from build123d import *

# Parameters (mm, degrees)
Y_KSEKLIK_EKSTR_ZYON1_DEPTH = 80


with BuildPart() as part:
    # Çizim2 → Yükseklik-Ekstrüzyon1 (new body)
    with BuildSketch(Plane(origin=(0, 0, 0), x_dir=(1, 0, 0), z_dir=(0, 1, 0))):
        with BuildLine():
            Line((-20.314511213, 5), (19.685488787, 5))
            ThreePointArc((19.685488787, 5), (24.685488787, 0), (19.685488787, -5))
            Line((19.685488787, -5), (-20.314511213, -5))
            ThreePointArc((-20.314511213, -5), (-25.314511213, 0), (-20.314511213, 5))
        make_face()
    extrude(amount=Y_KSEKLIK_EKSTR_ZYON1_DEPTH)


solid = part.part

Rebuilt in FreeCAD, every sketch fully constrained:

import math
import FreeCAD as App
import Part
import Sketcher
from FreeCAD import Vector
Q = App.Units.Quantity

doc = App.newDocument("Part")
params = doc.addObject("Spreadsheet::Sheet", "Params")
for row, (alias, value) in enumerate([
    ("sketch1_radius", "5 mm"),
    ("sketch1_width", "40 mm"),
    ("pad1_length", "80 mm"),
], start=1):
    params.set(f"A{row}", alias)
    params.set(f"B{row}", "=" + value)
    params.setAlias(f"B{row}", alias)

body = doc.addObject("PartDesign::Body", "Body")

# Sketch on XZ plane
sketch1 = doc.addObject("Sketcher::SketchObject", "Sketch")
body.addObject(sketch1)
sketch1.AttachmentSupport = (doc.XZ_Plane, [""])
sketch1.MapMode = "FlatFace"
sketch1.addGeometry(Part.LineSegment(Vector(20, -5, 0), Vector(-20, -5, 0)), False)
sketch1.addGeometry(Part.ArcOfCircle(Part.Circle(Vector(-20, 0, 0), Vector(0, 0, 1), 5), math.radians(90), math.radians(270)), False)
sketch1.addGeometry(Part.LineSegment(Vector(-20, 5, 0), Vector(20, 5, 0)), False)
sketch1.addGeometry(Part.ArcOfCircle(Part.Circle(Vector(20, 0, 0), Vector(0, 0, 1), 5), math.radians(-90), math.radians(90)), False)
sketch1.addConstraint(Sketcher.Constraint("Tangent", 0, 2, 1, 2))
sketch1.addConstraint(Sketcher.Constraint("Tangent", 1, 1, 2, 1))
sketch1.addConstraint(Sketcher.Constraint("Tangent", 2, 2, 3, 2))
sketch1.addConstraint(Sketcher.Constraint("Tangent", 3, 1, 0, 1))
sketch1.addConstraint(Sketcher.Constraint("Horizontal", 0))
sketch1.addConstraint(Sketcher.Constraint("Horizontal", 2))
sketch1.addConstraint(Sketcher.Constraint("PointOnObject", 1, 3, -1))
sketch1.addConstraint(Sketcher.Constraint("Radius", 1, Q("5 mm")))
sketch1.addConstraint(Sketcher.Constraint("DistanceX", 0, 2, 0, 1, Q("40 mm")))
sketch1.addConstraint(Sketcher.Constraint("DistanceX", 1, 3, -1, 1, Q("20.314511 mm")))
sketch1.setExpression("Constraints[7]", "Params.sketch1_radius")
sketch1.setExpression("Constraints[8]", "Params.sketch1_width")
pad1 = doc.addObject("PartDesign::Pad", "Pad")
body.addObject(pad1)
pad1.Profile = sketch1
pad1.setExpression("Length", "Params.pad1_length")
pad1.Reversed = True

doc.recompute()
